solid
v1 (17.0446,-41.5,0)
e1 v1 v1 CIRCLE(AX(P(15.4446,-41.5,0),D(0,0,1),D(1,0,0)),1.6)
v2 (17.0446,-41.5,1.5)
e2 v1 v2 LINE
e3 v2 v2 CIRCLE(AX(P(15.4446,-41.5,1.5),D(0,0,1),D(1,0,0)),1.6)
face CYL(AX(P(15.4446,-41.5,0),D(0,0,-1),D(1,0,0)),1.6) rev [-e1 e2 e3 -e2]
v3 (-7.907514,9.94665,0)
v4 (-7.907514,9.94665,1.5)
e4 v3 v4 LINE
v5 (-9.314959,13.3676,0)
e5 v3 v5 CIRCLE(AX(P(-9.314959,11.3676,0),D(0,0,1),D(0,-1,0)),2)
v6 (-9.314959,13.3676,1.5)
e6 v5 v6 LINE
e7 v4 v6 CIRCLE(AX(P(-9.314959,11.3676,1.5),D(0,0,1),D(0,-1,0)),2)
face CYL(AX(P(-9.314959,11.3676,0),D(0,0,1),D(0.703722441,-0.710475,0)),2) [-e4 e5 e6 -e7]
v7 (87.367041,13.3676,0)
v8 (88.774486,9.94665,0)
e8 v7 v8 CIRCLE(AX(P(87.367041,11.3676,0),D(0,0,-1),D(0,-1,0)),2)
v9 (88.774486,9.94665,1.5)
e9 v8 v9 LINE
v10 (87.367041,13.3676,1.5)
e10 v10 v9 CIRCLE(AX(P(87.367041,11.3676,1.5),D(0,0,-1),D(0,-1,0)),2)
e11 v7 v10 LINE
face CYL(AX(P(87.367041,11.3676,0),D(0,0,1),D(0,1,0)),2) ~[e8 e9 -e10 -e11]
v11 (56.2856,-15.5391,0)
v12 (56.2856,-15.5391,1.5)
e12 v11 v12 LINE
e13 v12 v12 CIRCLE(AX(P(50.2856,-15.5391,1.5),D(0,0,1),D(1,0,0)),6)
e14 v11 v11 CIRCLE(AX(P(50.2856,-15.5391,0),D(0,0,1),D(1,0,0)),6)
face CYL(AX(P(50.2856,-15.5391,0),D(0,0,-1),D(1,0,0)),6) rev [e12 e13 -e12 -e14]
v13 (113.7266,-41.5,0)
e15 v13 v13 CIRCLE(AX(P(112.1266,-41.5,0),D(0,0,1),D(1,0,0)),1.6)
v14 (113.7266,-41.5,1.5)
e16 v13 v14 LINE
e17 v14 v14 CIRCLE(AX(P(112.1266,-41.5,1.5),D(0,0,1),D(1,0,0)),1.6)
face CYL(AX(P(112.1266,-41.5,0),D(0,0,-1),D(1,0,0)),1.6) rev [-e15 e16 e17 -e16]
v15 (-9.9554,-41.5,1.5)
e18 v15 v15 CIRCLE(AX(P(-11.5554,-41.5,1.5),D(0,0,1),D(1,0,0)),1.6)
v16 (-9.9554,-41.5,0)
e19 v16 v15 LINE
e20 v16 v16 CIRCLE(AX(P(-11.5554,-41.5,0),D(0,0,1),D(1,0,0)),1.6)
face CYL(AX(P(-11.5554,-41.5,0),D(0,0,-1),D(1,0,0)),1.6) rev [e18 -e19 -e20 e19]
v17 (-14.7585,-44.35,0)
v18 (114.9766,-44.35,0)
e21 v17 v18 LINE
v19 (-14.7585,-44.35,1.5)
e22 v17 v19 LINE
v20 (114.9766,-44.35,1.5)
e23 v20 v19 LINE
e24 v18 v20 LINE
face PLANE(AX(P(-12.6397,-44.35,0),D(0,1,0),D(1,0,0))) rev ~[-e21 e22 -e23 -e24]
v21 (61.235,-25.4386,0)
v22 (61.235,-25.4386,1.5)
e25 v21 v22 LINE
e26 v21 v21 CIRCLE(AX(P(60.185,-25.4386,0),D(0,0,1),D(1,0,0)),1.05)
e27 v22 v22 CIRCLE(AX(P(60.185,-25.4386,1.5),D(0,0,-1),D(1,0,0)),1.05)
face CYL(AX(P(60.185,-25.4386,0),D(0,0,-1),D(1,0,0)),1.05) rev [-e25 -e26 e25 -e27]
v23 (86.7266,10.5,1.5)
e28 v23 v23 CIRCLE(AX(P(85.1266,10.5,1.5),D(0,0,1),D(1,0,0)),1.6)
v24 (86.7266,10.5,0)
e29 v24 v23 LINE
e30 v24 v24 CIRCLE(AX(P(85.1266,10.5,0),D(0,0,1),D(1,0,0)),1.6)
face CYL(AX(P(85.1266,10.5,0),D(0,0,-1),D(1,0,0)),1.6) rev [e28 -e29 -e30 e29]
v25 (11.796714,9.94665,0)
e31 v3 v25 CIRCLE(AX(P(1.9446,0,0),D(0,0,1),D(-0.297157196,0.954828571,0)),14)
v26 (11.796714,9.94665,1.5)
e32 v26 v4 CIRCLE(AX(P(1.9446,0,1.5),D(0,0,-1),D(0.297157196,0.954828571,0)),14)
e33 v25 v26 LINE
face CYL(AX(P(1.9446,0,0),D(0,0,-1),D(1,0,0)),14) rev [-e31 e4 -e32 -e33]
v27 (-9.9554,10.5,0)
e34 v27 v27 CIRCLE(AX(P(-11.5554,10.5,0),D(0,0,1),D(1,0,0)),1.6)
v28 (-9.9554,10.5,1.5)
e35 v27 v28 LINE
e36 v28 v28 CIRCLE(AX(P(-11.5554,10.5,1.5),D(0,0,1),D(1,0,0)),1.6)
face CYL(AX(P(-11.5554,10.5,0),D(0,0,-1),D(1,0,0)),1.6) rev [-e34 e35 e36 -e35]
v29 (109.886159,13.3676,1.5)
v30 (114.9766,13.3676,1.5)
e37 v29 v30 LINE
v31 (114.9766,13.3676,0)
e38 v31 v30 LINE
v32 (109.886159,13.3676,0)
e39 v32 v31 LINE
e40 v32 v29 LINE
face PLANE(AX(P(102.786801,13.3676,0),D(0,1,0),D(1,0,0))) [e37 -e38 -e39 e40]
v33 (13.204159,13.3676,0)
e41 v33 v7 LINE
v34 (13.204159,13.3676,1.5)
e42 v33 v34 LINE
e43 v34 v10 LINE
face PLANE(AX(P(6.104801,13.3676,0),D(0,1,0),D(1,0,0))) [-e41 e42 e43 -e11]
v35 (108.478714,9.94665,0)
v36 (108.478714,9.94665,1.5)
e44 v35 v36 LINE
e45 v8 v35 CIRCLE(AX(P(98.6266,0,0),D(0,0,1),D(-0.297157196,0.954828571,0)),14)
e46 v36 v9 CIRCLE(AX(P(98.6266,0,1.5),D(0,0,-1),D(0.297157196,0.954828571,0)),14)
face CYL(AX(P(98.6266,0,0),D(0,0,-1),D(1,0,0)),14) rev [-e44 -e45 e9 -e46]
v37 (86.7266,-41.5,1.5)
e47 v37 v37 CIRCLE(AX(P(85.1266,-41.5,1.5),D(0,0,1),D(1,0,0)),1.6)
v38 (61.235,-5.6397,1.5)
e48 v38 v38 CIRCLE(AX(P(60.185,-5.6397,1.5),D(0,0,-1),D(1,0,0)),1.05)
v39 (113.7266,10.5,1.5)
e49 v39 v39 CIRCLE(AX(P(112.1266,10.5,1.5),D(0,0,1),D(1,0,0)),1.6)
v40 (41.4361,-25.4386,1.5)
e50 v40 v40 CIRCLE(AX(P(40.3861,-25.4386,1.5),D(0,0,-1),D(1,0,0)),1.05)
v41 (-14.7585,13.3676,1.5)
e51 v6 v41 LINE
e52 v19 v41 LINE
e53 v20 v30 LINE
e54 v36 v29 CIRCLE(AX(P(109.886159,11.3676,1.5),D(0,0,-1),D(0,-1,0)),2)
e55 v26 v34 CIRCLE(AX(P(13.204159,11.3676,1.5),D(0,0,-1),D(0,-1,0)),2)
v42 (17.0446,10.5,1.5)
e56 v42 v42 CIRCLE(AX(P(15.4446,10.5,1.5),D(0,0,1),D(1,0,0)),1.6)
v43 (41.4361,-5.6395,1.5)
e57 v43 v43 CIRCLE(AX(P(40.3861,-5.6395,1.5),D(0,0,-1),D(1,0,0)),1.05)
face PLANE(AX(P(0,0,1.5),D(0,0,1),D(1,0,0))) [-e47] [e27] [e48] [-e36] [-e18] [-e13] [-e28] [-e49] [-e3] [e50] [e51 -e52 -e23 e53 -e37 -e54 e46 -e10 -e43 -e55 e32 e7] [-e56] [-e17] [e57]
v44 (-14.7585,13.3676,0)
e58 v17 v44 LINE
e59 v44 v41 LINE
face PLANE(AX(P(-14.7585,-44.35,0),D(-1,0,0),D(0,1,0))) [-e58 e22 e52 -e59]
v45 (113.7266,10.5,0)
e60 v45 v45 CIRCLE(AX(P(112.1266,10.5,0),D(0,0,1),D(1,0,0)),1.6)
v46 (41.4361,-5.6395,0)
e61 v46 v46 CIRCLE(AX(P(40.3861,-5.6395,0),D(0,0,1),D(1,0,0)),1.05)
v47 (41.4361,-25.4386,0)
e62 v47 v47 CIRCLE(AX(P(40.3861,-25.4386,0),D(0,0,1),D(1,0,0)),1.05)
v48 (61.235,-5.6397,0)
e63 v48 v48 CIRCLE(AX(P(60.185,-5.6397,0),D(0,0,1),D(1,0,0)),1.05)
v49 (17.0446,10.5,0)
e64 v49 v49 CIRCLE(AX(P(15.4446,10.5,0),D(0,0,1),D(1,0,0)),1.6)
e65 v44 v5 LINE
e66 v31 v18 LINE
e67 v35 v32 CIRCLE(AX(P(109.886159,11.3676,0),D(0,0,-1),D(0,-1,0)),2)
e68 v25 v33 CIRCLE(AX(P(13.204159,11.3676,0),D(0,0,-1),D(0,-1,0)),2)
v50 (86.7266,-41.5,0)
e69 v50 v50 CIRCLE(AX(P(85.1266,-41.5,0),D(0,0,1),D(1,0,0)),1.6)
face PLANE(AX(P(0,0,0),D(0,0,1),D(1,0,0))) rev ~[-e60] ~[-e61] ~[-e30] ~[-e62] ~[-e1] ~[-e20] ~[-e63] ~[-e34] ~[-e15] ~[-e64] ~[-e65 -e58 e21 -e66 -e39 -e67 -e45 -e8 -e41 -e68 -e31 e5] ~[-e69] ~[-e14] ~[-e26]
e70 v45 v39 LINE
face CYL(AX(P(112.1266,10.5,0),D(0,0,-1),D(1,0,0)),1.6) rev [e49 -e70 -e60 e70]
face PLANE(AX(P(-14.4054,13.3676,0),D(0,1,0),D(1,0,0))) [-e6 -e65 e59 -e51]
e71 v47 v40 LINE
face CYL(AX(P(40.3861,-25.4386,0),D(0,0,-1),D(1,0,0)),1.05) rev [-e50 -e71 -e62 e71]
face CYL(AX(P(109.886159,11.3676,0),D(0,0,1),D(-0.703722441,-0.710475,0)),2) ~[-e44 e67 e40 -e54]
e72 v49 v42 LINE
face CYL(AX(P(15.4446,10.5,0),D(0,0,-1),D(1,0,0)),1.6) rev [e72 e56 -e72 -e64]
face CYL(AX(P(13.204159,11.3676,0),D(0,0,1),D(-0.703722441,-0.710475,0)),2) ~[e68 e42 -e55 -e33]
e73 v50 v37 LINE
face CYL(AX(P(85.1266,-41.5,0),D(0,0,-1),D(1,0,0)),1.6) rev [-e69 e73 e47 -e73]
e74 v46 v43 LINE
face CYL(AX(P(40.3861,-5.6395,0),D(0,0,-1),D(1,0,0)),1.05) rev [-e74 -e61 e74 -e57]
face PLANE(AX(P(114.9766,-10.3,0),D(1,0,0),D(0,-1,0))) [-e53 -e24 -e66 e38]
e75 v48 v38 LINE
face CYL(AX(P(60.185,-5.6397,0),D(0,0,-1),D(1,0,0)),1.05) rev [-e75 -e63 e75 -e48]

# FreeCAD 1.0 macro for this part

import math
import FreeCAD as App
import Part
import Sketcher
from FreeCAD import Vector
Q = App.Units.Quantity


def edges_at(feature, points):
    """Names of the edges that pass closest to the given points."""
    edges = feature.Shape.Edges
    near = lambda p: min(range(len(edges)), key=lambda i: edges[i].distToShape(Part.Vertex(*p))[0])
    return sorted({f"Edge{near(p) + 1}" for p in points})

doc = App.newDocument("Part")
body = doc.addObject("PartDesign::Body", "Body")

# Sketch on XY plane
sketch1 = doc.addObject("Sketcher::SketchObject", "Sketch")
body.addObject(sketch1)
sketch1.AttachmentSupport = (doc.XY_Plane, [""])
sketch1.MapMode = "FlatFace"
sketch1.addGeometry([
    Part.LineSegment(Vector(115, -44.4, 0), Vector(115, 13.4, 0)),  # 0
    Part.LineSegment(Vector(115, 13.4, 0), Vector(102.8, 13.4, 0)),  # 1
    Part.ArcOfCircle(Part.Circle(Vector(98.6, 0, 0), Vector(0, 0, 1), 14), math.radians(107), math.radians(433)),  # 2
    Part.LineSegment(Vector(94.5, 13.4, 0), Vector(6.1, 13.4, 0)),  # 3
    Part.ArcOfCircle(Part.Circle(Vector(1.9, 0, 0), Vector(0, 0, 1), 14), math.radians(107), math.radians(433)),  # 4
    Part.LineSegment(Vector(-2.2, 13.4, 0), Vector(-14.8, 13.4, 0)),  # 5
    Part.LineSegment(Vector(-14.8, 13.4, 0), Vector(-14.8, -44.4, 0)),  # 6
    Part.LineSegment(Vector(-14.8, -44.4, 0), Vector(115, -44.4, 0)),  # 7
    Part.Circle(Vector(60.2, -25.4, 0), Vector(0, 0, 1), 1.1),  # 8
    Part.Circle(Vector(60.2, -5.6, 0), Vector(0, 0, 1), 1.1),  # 9
    Part.Circle(Vector(40.4, -5.6, 0), Vector(0, 0, 1), 1.1),  # 10
    Part.Circle(Vector(40.4, -25.4, 0), Vector(0, 0, 1), 1.1),  # 11
    Part.Circle(Vector(-11.6, -41.5, 0), Vector(0, 0, 1), 1.6),  # 12
    Part.Circle(Vector(15.4, -41.5, 0), Vector(0, 0, 1), 1.6),  # 13
    Part.Circle(Vector(-11.6, 10.5, 0), Vector(0, 0, 1), 1.6),  # 14
    Part.Circle(Vector(15.4, 10.5, 0), Vector(0, 0, 1), 1.6),  # 15
    Part.Circle(Vector(50.3, -15.5, 0), Vector(0, 0, 1), 6),  # 16
    Part.Circle(Vector(85.1, 10.5, 0), Vector(0, 0, 1), 1.6),  # 17
    Part.Circle(Vector(112.1, 10.5, 0), Vector(0, 0, 1), 1.6),  # 18
    Part.Circle(Vector(85.1, -41.5, 0), Vector(0, 0, 1), 1.6),  # 19
    Part.Circle(Vector(112.1, -41.5, 0), Vector(0, 0, 1), 1.6),  # 20
], False)
sketch1.addConstraint([
    Sketcher.Constraint("Coincident", 0, 2, 1, 1),
    Sketcher.Constraint("Coincident", 1, 2, 2, 2),
    Sketcher.Constraint("Coincident", 2, 1, 3, 1),
    Sketcher.Constraint("Coincident", 3, 2, 4, 2),
    Sketcher.Constraint("Coincident", 4, 1, 5, 1),
    Sketcher.Constraint("Coincident", 5, 2, 6, 1),
    Sketcher.Constraint("Coincident", 6, 2, 7, 1),
    Sketcher.Constraint("Coincident", 7, 2, 0, 1),
    Sketcher.Constraint("Vertical", 0),
    Sketcher.Constraint("Horizontal", 1),
    Sketcher.Constraint("Horizontal", 3),
    Sketcher.Constraint("Horizontal", 5),
    Sketcher.Constraint("Vertical", 6),
    Sketcher.Constraint("Horizontal", 7),
    Sketcher.Constraint("Equal", 2, 4),
    Sketcher.Constraint("Equal", 8, 9),
    Sketcher.Constraint("Equal", 9, 10),
    Sketcher.Constraint("Equal", 10, 11),
    Sketcher.Constraint("Equal", 12, 13),
    Sketcher.Constraint("Equal", 13, 14),
    Sketcher.Constraint("Equal", 14, 15),
    Sketcher.Constraint("Equal", 15, 17),
    Sketcher.Constraint("Equal", 17, 18),
    Sketcher.Constraint("Equal", 18, 19),
    Sketcher.Constraint("Equal", 19, 20),
    Sketcher.Constraint("PointOnObject", 2, 3, -1),
    Sketcher.Constraint("PointOnObject", 4, 3, -1),
    Sketcher.Constraint("Horizontal", 8, 3, 11, 3),
    Sketcher.Constraint("Horizontal", 12, 3, 13, 3),
    Sketcher.Constraint("Horizontal", 14, 3, 15, 3),
    Sketcher.Constraint("Horizontal", 15, 3, 17, 3),
    Sketcher.Constraint("Horizontal", 17, 3, 18, 3),
    Sketcher.Constraint("Horizontal", 13, 3, 19, 3),
    Sketcher.Constraint("Horizontal", 19, 3, 20, 3),
    Sketcher.Constraint("Horizontal", 1, 2, 2, 1),
    Sketcher.Constraint("Horizontal", 3, 2, 4, 1),
    Sketcher.Constraint("Vertical", 8, 3, 9, 3),
    Sketcher.Constraint("Vertical", 10, 3, 11, 3),
    Sketcher.Constraint("Vertical", 12, 3, 14, 3),
    Sketcher.Constraint("Vertical", 13, 3, 15, 3),
    Sketcher.Constraint("Vertical", 17, 3, 19, 3),
    Sketcher.Constraint("Vertical", 18, 3, 20, 3),
    Sketcher.Constraint("Diameter", 16, Q("12 mm")),
    Sketcher.Constraint("Radius", 2, Q("14 mm")),
    Sketcher.Constraint("Diameter", 8, Q("2.1 mm")),
    Sketcher.Constraint("Diameter", 12, Q("3.2 mm")),
    Sketcher.Constraint("DistanceY", 8, 3, 9, 3, Q("19.799 mm")),
    Sketcher.Constraint("DistanceX", 10, 3, 9, 3, Q("19.799 mm")),
    Sketcher.Constraint("DistanceY", 8, 3, 10, 3, Q("19.799 mm")),
    Sketcher.Constraint("DistanceX", 12, 3, 13, 3, Q("27 mm")),
    Sketcher.Constraint("DistanceY", 12, 3, 14, 3, Q("52 mm")),
    Sketcher.Constraint("DistanceX", 17, 3, 18, 3, Q("27 mm")),
    Sketcher.Constraint("DistanceY", 12, 3, -1, 1, Q("41.5 mm")),
    Sketcher.Constraint("DistanceX", 12, 3, 4, 3, Q("13.5 mm")),
    Sketcher.Constraint("DistanceX", 17, 3, 2, 3, Q("13.5 mm")),
    Sketcher.Constraint("DistanceX", 5, 2, 5, 1, Q("12.543 mm")),
    Sketcher.Constraint("DistanceX", 7, 1, 7, 2, Q("129.735 mm")),
    Sketcher.Constraint("DistanceY", 6, 2, -1, 1, Q("44.35 mm")),
    Sketcher.Constraint("DistanceX", 18, 3, 0, 2, Q("2.85 mm")),
    Sketcher.Constraint("DistanceX", 1, 2, 1, 1, Q("12.1898 mm")),
    Sketcher.Constraint("DistanceX", -1, 1, 8, 3, Q("60.185 mm")),
    Sketcher.Constraint("DistanceY", 16, 3, -1, 1, Q("15.539 mm")),
    Sketcher.Constraint("DistanceX", 13, 3, 16, 3, Q("34.841 mm")),
    Sketcher.Constraint("DistanceY", 10, 3, 3, 2, Q("19.007 mm")),
    Sketcher.Constraint("DistanceX", -1, 1, 2, 3, Q("98.6266 mm")),
])
pad1 = doc.addObject("PartDesign::Pad", "Pad")
body.addObject(pad1)
pad1.Profile = sketch1
pad1.Length = 1.5
doc.recompute()

fillet = doc.addObject("PartDesign::Fillet", "Fillet")
body.addObject(fillet)
fillet.Base = (pad1, edges_at(pad1, [
    (102.787, 13.368, 0.75),
    (94.466, 13.368, 0.75),
    (6.105, 13.368, 0.75),
    (-2.216, 13.368, 0.75),
]))
fillet.Radius = 2

doc.recompute()
